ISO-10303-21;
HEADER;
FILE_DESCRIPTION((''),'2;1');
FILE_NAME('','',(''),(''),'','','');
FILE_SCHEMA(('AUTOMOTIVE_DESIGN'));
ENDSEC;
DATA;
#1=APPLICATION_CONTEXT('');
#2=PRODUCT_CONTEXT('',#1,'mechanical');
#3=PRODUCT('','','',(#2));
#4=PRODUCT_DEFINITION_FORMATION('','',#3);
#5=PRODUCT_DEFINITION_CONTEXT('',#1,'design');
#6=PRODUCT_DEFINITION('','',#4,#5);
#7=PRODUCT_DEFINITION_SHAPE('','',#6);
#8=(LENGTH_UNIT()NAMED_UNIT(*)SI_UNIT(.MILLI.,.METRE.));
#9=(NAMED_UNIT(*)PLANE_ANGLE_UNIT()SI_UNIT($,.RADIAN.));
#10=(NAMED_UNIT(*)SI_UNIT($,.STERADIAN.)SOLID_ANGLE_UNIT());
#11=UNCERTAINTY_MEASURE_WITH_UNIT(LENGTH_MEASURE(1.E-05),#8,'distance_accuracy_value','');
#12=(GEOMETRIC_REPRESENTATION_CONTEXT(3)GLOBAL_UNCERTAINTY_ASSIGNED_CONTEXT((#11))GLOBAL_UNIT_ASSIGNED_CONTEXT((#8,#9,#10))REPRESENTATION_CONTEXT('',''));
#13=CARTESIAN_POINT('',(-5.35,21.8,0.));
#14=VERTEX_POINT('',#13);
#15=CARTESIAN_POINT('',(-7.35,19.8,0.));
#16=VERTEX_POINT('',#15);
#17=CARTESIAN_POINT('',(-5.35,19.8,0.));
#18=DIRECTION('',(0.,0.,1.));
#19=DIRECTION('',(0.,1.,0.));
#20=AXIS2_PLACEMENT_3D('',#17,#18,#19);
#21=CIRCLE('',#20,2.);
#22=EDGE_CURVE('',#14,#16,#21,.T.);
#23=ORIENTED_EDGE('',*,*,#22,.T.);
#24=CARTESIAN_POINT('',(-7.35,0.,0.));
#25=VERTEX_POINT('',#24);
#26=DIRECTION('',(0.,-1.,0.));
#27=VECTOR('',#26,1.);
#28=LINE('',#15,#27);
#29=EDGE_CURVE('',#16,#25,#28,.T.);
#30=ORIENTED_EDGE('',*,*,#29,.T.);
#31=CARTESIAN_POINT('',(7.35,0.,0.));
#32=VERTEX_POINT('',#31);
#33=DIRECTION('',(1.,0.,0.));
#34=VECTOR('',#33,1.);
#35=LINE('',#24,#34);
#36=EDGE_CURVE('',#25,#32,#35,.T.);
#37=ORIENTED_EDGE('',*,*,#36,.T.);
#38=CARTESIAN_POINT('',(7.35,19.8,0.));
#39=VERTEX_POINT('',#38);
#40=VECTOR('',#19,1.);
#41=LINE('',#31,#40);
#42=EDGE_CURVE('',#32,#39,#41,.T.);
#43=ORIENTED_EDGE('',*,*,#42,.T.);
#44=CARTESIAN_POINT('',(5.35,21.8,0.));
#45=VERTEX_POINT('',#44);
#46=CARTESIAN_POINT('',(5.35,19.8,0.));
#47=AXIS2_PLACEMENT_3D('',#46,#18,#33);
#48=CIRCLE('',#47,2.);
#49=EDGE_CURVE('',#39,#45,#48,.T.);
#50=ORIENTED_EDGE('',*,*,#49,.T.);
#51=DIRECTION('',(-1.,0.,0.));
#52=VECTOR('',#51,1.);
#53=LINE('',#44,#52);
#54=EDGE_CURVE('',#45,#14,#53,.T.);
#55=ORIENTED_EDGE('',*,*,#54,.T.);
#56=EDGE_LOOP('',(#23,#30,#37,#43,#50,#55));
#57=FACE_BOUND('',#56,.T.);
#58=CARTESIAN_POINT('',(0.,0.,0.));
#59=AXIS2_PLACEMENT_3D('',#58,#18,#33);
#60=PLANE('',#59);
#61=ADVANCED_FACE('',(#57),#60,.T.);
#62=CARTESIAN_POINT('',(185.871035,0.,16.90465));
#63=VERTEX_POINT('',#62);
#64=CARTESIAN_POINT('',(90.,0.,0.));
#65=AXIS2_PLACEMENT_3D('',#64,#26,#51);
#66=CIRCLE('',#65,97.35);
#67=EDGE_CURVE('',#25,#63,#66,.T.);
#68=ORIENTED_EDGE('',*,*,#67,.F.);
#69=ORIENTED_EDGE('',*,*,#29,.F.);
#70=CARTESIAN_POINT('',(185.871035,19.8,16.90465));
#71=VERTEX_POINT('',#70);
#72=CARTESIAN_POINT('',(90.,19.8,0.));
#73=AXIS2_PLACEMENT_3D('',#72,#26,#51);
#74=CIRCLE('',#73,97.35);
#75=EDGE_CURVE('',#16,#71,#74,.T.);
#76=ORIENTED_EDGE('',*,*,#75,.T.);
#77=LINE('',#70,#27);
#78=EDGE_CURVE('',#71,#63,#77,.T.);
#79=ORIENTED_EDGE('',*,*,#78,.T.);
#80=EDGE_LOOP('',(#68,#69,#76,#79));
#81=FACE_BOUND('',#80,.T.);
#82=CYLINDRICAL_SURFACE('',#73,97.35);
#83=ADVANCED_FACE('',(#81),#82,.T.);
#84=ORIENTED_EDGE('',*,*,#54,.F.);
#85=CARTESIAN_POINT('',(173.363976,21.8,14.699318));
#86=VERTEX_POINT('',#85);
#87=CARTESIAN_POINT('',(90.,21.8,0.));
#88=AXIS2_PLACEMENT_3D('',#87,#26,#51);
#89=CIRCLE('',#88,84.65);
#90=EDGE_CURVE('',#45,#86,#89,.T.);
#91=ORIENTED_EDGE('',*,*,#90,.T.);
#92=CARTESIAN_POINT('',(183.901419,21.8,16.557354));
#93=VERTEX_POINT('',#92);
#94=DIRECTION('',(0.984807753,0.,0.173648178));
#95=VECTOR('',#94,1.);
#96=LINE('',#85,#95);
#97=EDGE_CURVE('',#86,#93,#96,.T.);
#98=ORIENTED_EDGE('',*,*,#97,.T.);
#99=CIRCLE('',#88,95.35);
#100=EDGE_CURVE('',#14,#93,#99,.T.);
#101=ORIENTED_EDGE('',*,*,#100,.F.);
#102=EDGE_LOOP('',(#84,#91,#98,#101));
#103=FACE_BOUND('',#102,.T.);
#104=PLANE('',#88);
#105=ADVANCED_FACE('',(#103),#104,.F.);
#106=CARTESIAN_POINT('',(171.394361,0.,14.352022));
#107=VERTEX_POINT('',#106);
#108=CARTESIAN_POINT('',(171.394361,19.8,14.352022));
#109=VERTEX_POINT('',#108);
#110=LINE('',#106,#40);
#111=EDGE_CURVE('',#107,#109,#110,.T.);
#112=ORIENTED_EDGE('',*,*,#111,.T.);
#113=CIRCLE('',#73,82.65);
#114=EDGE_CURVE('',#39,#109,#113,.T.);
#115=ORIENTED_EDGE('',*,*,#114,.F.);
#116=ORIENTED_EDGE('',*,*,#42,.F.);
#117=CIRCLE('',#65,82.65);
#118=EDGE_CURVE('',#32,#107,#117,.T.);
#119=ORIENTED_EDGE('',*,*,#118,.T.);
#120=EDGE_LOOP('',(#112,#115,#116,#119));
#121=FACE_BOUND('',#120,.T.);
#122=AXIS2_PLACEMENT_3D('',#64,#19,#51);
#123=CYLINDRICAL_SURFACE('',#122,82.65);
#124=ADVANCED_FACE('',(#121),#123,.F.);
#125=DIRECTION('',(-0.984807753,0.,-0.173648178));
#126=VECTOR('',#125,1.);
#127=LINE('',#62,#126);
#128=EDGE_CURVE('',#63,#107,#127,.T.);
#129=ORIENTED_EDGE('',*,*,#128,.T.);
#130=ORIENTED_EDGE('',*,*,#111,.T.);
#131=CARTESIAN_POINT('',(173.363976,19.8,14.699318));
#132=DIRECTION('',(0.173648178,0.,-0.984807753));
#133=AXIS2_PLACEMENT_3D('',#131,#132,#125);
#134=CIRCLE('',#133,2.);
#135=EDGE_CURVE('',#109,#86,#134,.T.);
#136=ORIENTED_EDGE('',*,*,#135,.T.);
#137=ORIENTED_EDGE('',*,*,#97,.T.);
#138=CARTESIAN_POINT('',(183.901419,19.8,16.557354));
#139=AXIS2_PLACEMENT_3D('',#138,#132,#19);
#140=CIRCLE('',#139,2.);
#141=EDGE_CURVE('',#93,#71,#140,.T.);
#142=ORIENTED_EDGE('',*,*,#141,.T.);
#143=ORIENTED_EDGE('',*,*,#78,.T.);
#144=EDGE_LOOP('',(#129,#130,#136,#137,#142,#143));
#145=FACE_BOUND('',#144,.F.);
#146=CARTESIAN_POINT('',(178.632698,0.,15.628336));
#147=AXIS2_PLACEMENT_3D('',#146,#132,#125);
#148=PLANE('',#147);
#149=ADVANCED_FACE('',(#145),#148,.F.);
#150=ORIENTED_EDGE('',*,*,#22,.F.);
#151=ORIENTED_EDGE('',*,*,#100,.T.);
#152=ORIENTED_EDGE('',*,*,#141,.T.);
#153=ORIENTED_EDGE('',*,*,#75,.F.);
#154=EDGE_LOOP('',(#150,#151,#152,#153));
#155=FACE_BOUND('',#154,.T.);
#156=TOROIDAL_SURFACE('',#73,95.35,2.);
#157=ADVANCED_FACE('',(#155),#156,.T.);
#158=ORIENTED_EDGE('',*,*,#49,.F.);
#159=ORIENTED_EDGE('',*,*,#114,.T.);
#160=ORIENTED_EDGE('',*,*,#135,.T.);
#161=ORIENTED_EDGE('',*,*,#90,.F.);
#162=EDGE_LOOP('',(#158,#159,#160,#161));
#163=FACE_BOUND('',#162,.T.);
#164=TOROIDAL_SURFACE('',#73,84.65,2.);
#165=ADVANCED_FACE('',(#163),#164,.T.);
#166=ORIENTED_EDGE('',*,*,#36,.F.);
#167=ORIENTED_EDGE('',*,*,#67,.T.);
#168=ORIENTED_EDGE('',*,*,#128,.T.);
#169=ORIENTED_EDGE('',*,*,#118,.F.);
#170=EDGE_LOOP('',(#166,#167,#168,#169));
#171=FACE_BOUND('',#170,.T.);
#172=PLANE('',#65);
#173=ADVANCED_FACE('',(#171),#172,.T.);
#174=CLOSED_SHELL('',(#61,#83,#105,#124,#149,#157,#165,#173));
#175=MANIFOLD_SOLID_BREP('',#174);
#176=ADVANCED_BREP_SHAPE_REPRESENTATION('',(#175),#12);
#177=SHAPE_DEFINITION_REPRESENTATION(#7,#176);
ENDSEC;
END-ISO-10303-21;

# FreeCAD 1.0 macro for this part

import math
import FreeCAD as App
import Part
import Sketcher
from FreeCAD import Vector
Q = App.Units.Quantity

doc = App.newDocument("Part")
params = doc.addObject("Spreadsheet::Sheet", "Params")
for row, (alias, value) in enumerate([
    ("sketch1_radius", "2 mm"),
    ("sketch1_width", "14.7 mm"),
    ("sketch1_height", "21.8 mm"),
    ("revolution_angle", "190 deg"),
], start=1):
    params.set(f"A{row}", alias)
    params.set(f"B{row}", "=" + value)
    params.setAlias(f"B{row}", alias)

body = doc.addObject("PartDesign::Body", "Body")

sketch1 = body.newObject("Sketcher::SketchObject", "Sketch")
sketch1.AttachmentSupport = (doc.getObject("XY_Plane"), [""])
sketch1.MapMode = "FlatFace"
sketch1.addGeometry([
    Part.LineSegment(Vector(-7.3, 0, 0), Vector(7.3, 0, 0)),
    Part.LineSegment(Vector(7.3, 0, 0), Vector(7.3, 19.8, 0)),
    Part.ArcOfCircle(Part.Circle(Vector(5.3, 19.8, 0), Vector(0, 0, 1), 2), math.radians(0), math.radians(90)),
    Part.LineSegment(Vector(5.3, 21.8, 0), Vector(-5.3, 21.8, 0)),
    Part.ArcOfCircle(Part.Circle(Vector(-5.3, 19.8, 0), Vector(0, 0, 1), 2), math.radians(90), math.radians(180)),
    Part.LineSegment(Vector(-7.3, 19.8, 0), Vector(-7.3, 0, 0)),
], False)
sketch1.addGeometry(Part.LineSegment(Vector(90, 21.8, 0), Vector(90, 0, 0)), True)
sketch1.addConstraint([
    Sketcher.Constraint("Coincident", 0, 2, 1, 1),
    Sketcher.Constraint("Tangent", 1, 2, 2, 1),
    Sketcher.Constraint("Tangent", 2, 2, 3, 1),
    Sketcher.Constraint("Tangent", 3, 2, 4, 1),
    Sketcher.Constraint("Tangent", 4, 2, 5, 1),
    Sketcher.Constraint("Coincident", 5, 2, 0, 1),
    Sketcher.Constraint("Horizontal", 0),
    Sketcher.Constraint("Vertical", 1),
    Sketcher.Constraint("Horizontal", 3),
    Sketcher.Constraint("Vertical", 5),
    Sketcher.Constraint("Vertical", 6),
    Sketcher.Constraint("Equal", 2, 4),
    Sketcher.Constraint("Symmetric", 0, 2, 5, 2, -1, 1),
    Sketcher.Constraint("PointOnObject", 6, 2, -1),
    Sketcher.Constraint("Horizontal", 3, 2, 6, 1),
    Sketcher.Constraint("Radius", 2, Q("2 mm")),
    Sketcher.Constraint("DistanceX", 0, 1, 0, 2, Q("14.7 mm")),
    Sketcher.Constraint("DistanceY", 6, 2, 6, 1, Q("21.8 mm")),
    Sketcher.Constraint("DistanceX", -1, 1, 6, 1, Q("90 mm")),
])
sketch1.setExpression("Constraints[15]", "Params.sketch1_radius")
sketch1.setExpression("Constraints[16]", "Params.sketch1_width")
sketch1.setExpression("Constraints[17]", "Params.sketch1_height")
revolution = body.newObject("PartDesign::Revolution", "Revolution")
revolution.Profile = sketch1
revolution.ReferenceAxis = (sketch1, ["Axis0"])
revolution.setExpression("Angle", "Params.revolution_angle")

doc.recompute()
